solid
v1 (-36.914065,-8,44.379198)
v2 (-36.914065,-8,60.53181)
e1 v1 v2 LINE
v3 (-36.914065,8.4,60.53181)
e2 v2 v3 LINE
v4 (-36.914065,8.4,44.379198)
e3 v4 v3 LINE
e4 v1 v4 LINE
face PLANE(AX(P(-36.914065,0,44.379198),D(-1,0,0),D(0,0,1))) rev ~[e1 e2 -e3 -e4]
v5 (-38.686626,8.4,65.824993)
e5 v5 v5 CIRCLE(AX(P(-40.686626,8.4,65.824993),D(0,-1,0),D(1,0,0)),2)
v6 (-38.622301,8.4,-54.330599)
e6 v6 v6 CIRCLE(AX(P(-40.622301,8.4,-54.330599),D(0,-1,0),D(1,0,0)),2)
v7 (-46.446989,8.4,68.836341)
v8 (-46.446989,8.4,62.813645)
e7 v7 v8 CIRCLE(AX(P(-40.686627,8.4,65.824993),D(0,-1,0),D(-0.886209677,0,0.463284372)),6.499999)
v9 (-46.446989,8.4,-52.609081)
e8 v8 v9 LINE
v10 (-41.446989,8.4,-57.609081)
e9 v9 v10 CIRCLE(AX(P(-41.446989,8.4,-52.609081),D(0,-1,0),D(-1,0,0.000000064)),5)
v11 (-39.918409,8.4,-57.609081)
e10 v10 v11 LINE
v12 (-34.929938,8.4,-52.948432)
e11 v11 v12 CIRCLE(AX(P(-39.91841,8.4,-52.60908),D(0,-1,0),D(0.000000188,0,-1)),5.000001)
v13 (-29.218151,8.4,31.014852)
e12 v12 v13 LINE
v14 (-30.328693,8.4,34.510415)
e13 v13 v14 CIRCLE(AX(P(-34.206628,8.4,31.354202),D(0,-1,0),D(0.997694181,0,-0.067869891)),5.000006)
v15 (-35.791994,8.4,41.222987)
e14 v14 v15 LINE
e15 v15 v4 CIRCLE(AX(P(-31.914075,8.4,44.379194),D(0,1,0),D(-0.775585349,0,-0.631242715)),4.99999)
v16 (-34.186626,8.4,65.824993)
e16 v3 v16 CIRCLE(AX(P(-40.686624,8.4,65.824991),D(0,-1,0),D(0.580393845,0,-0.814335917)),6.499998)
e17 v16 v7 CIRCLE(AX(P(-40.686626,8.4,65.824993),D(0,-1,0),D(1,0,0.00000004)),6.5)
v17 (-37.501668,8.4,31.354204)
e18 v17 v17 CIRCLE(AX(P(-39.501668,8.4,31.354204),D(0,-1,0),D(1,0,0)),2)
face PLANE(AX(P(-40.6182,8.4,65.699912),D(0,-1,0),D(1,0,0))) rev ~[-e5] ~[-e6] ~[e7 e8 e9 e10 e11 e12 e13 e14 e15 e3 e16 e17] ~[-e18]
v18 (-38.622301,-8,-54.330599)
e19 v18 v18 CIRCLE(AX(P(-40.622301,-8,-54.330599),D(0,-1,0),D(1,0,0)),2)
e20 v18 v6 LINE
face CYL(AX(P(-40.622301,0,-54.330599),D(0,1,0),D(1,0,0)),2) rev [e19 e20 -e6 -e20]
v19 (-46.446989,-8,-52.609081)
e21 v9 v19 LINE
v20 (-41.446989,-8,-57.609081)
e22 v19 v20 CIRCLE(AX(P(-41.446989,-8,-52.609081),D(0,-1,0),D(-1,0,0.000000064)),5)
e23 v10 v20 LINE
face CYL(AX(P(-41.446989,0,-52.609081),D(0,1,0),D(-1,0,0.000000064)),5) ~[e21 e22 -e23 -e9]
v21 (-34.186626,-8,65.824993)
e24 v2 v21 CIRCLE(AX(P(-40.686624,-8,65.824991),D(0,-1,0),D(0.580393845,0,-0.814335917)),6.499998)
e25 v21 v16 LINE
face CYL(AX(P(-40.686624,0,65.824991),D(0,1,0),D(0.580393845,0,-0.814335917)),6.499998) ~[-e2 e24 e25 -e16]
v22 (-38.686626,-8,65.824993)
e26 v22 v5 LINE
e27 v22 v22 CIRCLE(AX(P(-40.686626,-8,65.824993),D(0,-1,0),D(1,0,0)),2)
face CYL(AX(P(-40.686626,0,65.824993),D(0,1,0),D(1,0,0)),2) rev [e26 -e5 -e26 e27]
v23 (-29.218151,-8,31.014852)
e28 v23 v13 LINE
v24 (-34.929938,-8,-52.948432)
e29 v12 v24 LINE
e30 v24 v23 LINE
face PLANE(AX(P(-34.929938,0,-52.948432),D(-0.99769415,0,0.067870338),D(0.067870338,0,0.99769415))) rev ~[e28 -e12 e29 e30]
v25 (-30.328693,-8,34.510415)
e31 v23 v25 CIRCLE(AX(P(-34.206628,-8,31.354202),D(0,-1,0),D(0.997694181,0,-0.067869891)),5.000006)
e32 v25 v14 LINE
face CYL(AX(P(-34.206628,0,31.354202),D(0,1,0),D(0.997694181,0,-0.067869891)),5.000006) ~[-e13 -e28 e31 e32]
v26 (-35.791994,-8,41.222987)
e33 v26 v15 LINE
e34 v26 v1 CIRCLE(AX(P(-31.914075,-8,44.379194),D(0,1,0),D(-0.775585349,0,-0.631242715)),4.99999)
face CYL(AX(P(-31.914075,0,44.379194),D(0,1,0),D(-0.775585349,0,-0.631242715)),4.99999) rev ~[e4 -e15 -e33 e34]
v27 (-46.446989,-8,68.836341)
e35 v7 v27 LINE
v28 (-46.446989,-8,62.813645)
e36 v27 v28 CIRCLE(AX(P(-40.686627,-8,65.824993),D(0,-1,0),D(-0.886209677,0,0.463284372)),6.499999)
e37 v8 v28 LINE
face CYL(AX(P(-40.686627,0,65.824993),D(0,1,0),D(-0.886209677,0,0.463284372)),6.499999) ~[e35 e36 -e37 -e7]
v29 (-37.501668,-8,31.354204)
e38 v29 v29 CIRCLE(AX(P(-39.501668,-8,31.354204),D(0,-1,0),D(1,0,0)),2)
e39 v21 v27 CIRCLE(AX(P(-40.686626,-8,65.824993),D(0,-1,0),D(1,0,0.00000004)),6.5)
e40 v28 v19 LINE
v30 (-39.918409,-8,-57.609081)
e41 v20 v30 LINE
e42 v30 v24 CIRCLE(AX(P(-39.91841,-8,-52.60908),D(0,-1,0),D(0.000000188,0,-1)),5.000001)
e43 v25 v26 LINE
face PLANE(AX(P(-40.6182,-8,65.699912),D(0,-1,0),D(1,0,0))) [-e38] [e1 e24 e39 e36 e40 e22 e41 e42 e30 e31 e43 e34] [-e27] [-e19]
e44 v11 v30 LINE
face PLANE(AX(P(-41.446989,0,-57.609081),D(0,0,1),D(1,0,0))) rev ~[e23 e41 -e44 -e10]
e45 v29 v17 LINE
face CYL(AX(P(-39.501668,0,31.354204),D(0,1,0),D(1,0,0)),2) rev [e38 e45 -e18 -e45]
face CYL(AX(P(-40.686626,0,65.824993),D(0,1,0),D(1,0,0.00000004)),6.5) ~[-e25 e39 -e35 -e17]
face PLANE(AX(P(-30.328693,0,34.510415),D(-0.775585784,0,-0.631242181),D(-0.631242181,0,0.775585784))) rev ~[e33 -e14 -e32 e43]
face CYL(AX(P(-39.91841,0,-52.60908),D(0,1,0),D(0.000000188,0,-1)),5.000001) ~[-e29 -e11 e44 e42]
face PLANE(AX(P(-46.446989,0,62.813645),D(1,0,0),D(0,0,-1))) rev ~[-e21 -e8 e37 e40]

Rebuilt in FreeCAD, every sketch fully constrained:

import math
import FreeCAD as App
import Part
import Sketcher

doc = App.newDocument("Part")
body = doc.addObject("PartDesign::Body", "Body")

# Sketch on XZ plane
sketch1 = doc.addObject("Sketcher::SketchObject", "Sketch")
body.addObject(sketch1)
sketch1.AttachmentSupport = (doc.XZ_Plane, [""])
sketch1.MapMode = "FlatFace"
sketch1.addGeometry([
    Part.ArcOfCircle(Part.Circle(App.Vector(-40.686626, 65.824993, 0), App.Vector(0, 0, 1), 6.5), math.radians(0.000002), math.radians(152.400756)),  # 0
    Part.ArcOfCircle(Part.Circle(App.Vector(-40.686627, 65.824993, 0), App.Vector(0, 0, 1), 6.499999), math.radians(152.400754), math.radians(207.599246)),  # 1
    Part.LineSegment(App.Vector(-46.446989, 62.813645, 0), App.Vector(-46.446989, -52.609081, 0)),  # 2
    Part.ArcOfCircle(Part.Circle(App.Vector(-41.446989, -52.609081, 0), App.Vector(0, 0, 1), 5), math.radians(179.999996), math.radians(270.000004)),  # 3
    Part.LineSegment(App.Vector(-41.446989, -57.609081, 0), App.Vector(-39.918409, -57.609081, 0)),  # 4
    Part.ArcOfCircle(Part.Circle(App.Vector(-39.91841, -52.60908, 0), App.Vector(0, 0, 1), 5.000001), math.radians(-89.999989), math.radians(-3.891681)),  # 5
    Part.LineSegment(App.Vector(-34.929938, -52.948432, 0), App.Vector(-29.218151, 31.014852, 0)),  # 6
    Part.ArcOfCircle(Part.Circle(App.Vector(-34.206628, 31.354202, 0), App.Vector(0, 0, 1), 5.000006), math.radians(-3.89165), math.radians(39.141804)),  # 7
    Part.LineSegment(App.Vector(-30.328693, 34.510415, 0), App.Vector(-35.791994, 41.222987, 0)),  # 8
    Part.ArcOfCircle(Part.Circle(App.Vector(-31.914075, 44.379194, 0), App.Vector(0, 0, 1), 4.99999), math.radians(179.999957), math.radians(219.141867)),  # 9
    Part.LineSegment(App.Vector(-36.914065, 44.379198, 0), App.Vector(-36.914065, 60.53181, 0)),  # 10
    Part.ArcOfCircle(Part.Circle(App.Vector(-40.686624, 65.824991, 0), App.Vector(0, 0, 1), 6.499998), math.radians(-54.521752), math.radians(0.000013)),  # 11
    Part.Circle(App.Vector(-40.622301, -54.330599, 0), App.Vector(0, 0, 1), 2),  # 12
    Part.Circle(App.Vector(-40.686626, 65.824993, 0), App.Vector(0, 0, 1), 2),  # 13
    Part.Circle(App.Vector(-39.501668, 31.354204, 0), App.Vector(0, 0, 1), 2),  # 14
], False)
sketch1.addConstraint([
    Sketcher.Constraint("Tangent", 0, 2, 1, 1),
    Sketcher.Constraint("Coincident", 1, 2, 2, 1),
    Sketcher.Constraint("Tangent", 2, 2, 3, 1),
    Sketcher.Constraint("Tangent", 3, 2, 4, 1),
    Sketcher.Constraint("Tangent", 4, 2, 5, 1),
    Sketcher.Constraint("Tangent", 5, 2, 6, 1),
    Sketcher.Constraint("Tangent", 6, 2, 7, 1),
    Sketcher.Constraint("Tangent", 7, 2, 8, 1),
    Sketcher.Constraint("Tangent", 8, 2, 9, 2),
    Sketcher.Constraint("Tangent", 9, 1, 10, 1),
    Sketcher.Constraint("Coincident", 10, 2, 11, 1),
    Sketcher.Constraint("Tangent", 11, 2, 0, 1),
    Sketcher.Constraint("Vertical", 2),
    Sketcher.Constraint("Horizontal", 4),
    Sketcher.Constraint("Vertical", 10),
    Sketcher.Constraint("Coincident", 13, 3, 0, 3),
    Sketcher.Constraint("Equal", 0, 1),
    Sketcher.Constraint("Equal", 3, 5),
    Sketcher.Constraint("Equal", 1, 11),
    Sketcher.Constraint("Equal", 12, 13),
    Sketcher.Constraint("Equal", 13, 14),
    Sketcher.Constraint("Horizontal", 13, 3, 11, 2),
    Sketcher.Constraint("Vertical", 0, 2, 1, 2),
    Sketcher.Constraint("Diameter", 12, 4.0),
    Sketcher.Constraint("Radius", 3, 5.0),
    Sketcher.Constraint("Radius", 0, 6.5),
    Sketcher.Constraint("Radius", 9, 4.99999),
    Sketcher.Constraint("DistanceX", 1, 3, 7, 3, 6.479999),
    Sketcher.Constraint("Radius", 7, 5.000006),
    Sketcher.Constraint("DistanceX", 4, 1, 4, 2, 1.52858),
    Sketcher.Constraint("DistanceY", 10, 1, 10, 2, 16.152612),
    Sketcher.Constraint("DistanceY", -1, 1, 7, 3, 31.354202),
    Sketcher.Constraint("DistanceX", 12, 3, -1, 1, 40.622301),
    Sketcher.Constraint("DistanceY", 12, 3, -1, 1, 54.330599),
    Sketcher.Constraint("DistanceY", -1, 1, 9, 1, 44.379198),
    Sketcher.Constraint("DistanceY", 9, 3, 0, 3, 21.445799),
    Sketcher.Constraint("Distance", 6, 84.157338),
    Sketcher.Constraint("DistanceY", 2, 2, 2, 1, 115.422726),
    Sketcher.Constraint("DistanceX", 3, 3, -1, 1, 41.446989),
    Sketcher.Constraint("DistanceX", 14, 3, -1, 1, 39.501668),
    Sketcher.Constraint("DistanceY", 14, 3, 9, 3, 13.02499),
])
pad1 = doc.addObject("PartDesign::Pad", "Pad")
body.addObject(pad1)
pad1.Profile = sketch1
pad1.Length = 8.4
pad1.Reversed = True

# Sketch on XZ plane
sketch2 = doc.addObject("Sketcher::SketchObject", "Sketch001")
body.addObject(sketch2)
sketch2.AttachmentSupport = (doc.XZ_Plane, [""])
sketch2.MapMode = "FlatFace"
sketch2.addGeometry([
    Part.ArcOfCircle(Part.Circle(App.Vector(-40.686626, 65.824993, 0), App.Vector(0, 0, 1), 6.5), math.radians(0.000002), math.radians(152.400756)),  # 0
    Part.ArcOfCircle(Part.Circle(App.Vector(-40.686627, 65.824993, 0), App.Vector(0, 0, 1), 6.499999), math.radians(152.400754), math.radians(207.599246)),  # 1
    Part.LineSegment(App.Vector(-46.446989, 62.813645, 0), App.Vector(-46.446989, -52.609081, 0)),  # 2
    Part.ArcOfCircle(Part.Circle(App.Vector(-41.446989, -52.609081, 0), App.Vector(0, 0, 1), 5), math.radians(179.999996), math.radians(270.000004)),  # 3
    Part.LineSegment(App.Vector(-41.446989, -57.609081, 0), App.Vector(-39.918409, -57.609081, 0)),  # 4
    Part.ArcOfCircle(Part.Circle(App.Vector(-39.91841, -52.60908, 0), App.Vector(0, 0, 1), 5.000001), math.radians(-89.999989), math.radians(-3.891681)),  # 5
    Part.LineSegment(App.Vector(-34.929938, -52.948432, 0), App.Vector(-29.218151, 31.014852, 0)),  # 6
    Part.ArcOfCircle(Part.Circle(App.Vector(-34.206628, 31.354202, 0), App.Vector(0, 0, 1), 5.000006), math.radians(-3.89165), math.radians(39.141804)),  # 7
    Part.LineSegment(App.Vector(-30.328693, 34.510415, 0), App.Vector(-35.791994, 41.222987, 0)),  # 8
    Part.ArcOfCircle(Part.Circle(App.Vector(-31.914075, 44.379194, 0), App.Vector(0, 0, 1), 4.99999), math.radians(179.999957), math.radians(219.141867)),  # 9
    Part.LineSegment(App.Vector(-36.914065, 44.379198, 0), App.Vector(-36.914065, 60.53181, 0)),  # 10
    Part.ArcOfCircle(Part.Circle(App.Vector(-40.686624, 65.824991, 0), App.Vector(0, 0, 1), 6.499998), math.radians(-54.521752), math.radians(0.000013)),  # 11
    Part.Circle(App.Vector(-40.622301, -54.330599, 0), App.Vector(0, 0, 1), 2),  # 12
    Part.Circle(App.Vector(-40.686626, 65.824993, 0), App.Vector(0, 0, 1), 2),  # 13
    Part.Circle(App.Vector(-39.501668, 31.354204, 0), App.Vector(0, 0, 1), 2),  # 14
], False)
sketch2.addConstraint([
    Sketcher.Constraint("Tangent", 0, 2, 1, 1),
    Sketcher.Constraint("Coincident", 1, 2, 2, 1),
    Sketcher.Constraint("Tangent", 2, 2, 3, 1),
    Sketcher.Constraint("Tangent", 3, 2, 4, 1),
    Sketcher.Constraint("Tangent", 4, 2, 5, 1),
    Sketcher.Constraint("Tangent", 5, 2, 6, 1),
    Sketcher.Constraint("Tangent", 6, 2, 7, 1),
    Sketcher.Constraint("Tangent", 7, 2, 8, 1),
    Sketcher.Constraint("Tangent", 8, 2, 9, 2),
    Sketcher.Constraint("Tangent", 9, 1, 10, 1),
    Sketcher.Constraint("Coincident", 10, 2, 11, 1),
    Sketcher.Constraint("Tangent", 11, 2, 0, 1),
    Sketcher.Constraint("Vertical", 2),
    Sketcher.Constraint("Horizontal", 4),
    Sketcher.Constraint("Vertical", 10),
    Sketcher.Constraint("Coincident", 13, 3, 0, 3),
    Sketcher.Constraint("Equal", 0, 1),
    Sketcher.Constraint("Equal", 3, 5),
    Sketcher.Constraint("Equal", 1, 11),
    Sketcher.Constraint("Equal", 12, 13),
    Sketcher.Constraint("Equal", 13, 14),
    Sketcher.Constraint("Horizontal", 13, 3, 11, 2),
    Sketcher.Constraint("Vertical", 0, 2, 1, 2),
    Sketcher.Constraint("Diameter", 12, 4.0),
    Sketcher.Constraint("Radius", 3, 5.0),
    Sketcher.Constraint("Radius", 0, 6.5),
    Sketcher.Constraint("Radius", 9, 4.99999),
    Sketcher.Constraint("DistanceX", 1, 3, 7, 3, 6.479999),
    Sketcher.Constraint("Radius", 7, 5.000006),
    Sketcher.Constraint("DistanceX", 4, 1, 4, 2, 1.52858),
    Sketcher.Constraint("DistanceY", 10, 1, 10, 2, 16.152612),
    Sketcher.Constraint("DistanceY", -1, 1, 7, 3, 31.354202),
    Sketcher.Constraint("DistanceX", 12, 3, -1, 1, 40.622301),
    Sketcher.Constraint("DistanceY", 12, 3, -1, 1, 54.330599),
    Sketcher.Constraint("DistanceY", -1, 1, 9, 1, 44.379198),
    Sketcher.Constraint("DistanceY", 9, 3, 0, 3, 21.445799),
    Sketcher.Constraint("Distance", 6, 84.157338),
    Sketcher.Constraint("DistanceY", 2, 2, 2, 1, 115.422726),
    Sketcher.Constraint("DistanceX", 3, 3, -1, 1, 41.446989),
    Sketcher.Constraint("DistanceX", 14, 3, -1, 1, 39.501668),
    Sketcher.Constraint("DistanceY", 14, 3, 9, 3, 13.02499),
])
pad2 = doc.addObject("PartDesign::Pad", "Pad001")
body.addObject(pad2)
pad2.Profile = sketch2
pad2.Length = 8

doc.recompute()
